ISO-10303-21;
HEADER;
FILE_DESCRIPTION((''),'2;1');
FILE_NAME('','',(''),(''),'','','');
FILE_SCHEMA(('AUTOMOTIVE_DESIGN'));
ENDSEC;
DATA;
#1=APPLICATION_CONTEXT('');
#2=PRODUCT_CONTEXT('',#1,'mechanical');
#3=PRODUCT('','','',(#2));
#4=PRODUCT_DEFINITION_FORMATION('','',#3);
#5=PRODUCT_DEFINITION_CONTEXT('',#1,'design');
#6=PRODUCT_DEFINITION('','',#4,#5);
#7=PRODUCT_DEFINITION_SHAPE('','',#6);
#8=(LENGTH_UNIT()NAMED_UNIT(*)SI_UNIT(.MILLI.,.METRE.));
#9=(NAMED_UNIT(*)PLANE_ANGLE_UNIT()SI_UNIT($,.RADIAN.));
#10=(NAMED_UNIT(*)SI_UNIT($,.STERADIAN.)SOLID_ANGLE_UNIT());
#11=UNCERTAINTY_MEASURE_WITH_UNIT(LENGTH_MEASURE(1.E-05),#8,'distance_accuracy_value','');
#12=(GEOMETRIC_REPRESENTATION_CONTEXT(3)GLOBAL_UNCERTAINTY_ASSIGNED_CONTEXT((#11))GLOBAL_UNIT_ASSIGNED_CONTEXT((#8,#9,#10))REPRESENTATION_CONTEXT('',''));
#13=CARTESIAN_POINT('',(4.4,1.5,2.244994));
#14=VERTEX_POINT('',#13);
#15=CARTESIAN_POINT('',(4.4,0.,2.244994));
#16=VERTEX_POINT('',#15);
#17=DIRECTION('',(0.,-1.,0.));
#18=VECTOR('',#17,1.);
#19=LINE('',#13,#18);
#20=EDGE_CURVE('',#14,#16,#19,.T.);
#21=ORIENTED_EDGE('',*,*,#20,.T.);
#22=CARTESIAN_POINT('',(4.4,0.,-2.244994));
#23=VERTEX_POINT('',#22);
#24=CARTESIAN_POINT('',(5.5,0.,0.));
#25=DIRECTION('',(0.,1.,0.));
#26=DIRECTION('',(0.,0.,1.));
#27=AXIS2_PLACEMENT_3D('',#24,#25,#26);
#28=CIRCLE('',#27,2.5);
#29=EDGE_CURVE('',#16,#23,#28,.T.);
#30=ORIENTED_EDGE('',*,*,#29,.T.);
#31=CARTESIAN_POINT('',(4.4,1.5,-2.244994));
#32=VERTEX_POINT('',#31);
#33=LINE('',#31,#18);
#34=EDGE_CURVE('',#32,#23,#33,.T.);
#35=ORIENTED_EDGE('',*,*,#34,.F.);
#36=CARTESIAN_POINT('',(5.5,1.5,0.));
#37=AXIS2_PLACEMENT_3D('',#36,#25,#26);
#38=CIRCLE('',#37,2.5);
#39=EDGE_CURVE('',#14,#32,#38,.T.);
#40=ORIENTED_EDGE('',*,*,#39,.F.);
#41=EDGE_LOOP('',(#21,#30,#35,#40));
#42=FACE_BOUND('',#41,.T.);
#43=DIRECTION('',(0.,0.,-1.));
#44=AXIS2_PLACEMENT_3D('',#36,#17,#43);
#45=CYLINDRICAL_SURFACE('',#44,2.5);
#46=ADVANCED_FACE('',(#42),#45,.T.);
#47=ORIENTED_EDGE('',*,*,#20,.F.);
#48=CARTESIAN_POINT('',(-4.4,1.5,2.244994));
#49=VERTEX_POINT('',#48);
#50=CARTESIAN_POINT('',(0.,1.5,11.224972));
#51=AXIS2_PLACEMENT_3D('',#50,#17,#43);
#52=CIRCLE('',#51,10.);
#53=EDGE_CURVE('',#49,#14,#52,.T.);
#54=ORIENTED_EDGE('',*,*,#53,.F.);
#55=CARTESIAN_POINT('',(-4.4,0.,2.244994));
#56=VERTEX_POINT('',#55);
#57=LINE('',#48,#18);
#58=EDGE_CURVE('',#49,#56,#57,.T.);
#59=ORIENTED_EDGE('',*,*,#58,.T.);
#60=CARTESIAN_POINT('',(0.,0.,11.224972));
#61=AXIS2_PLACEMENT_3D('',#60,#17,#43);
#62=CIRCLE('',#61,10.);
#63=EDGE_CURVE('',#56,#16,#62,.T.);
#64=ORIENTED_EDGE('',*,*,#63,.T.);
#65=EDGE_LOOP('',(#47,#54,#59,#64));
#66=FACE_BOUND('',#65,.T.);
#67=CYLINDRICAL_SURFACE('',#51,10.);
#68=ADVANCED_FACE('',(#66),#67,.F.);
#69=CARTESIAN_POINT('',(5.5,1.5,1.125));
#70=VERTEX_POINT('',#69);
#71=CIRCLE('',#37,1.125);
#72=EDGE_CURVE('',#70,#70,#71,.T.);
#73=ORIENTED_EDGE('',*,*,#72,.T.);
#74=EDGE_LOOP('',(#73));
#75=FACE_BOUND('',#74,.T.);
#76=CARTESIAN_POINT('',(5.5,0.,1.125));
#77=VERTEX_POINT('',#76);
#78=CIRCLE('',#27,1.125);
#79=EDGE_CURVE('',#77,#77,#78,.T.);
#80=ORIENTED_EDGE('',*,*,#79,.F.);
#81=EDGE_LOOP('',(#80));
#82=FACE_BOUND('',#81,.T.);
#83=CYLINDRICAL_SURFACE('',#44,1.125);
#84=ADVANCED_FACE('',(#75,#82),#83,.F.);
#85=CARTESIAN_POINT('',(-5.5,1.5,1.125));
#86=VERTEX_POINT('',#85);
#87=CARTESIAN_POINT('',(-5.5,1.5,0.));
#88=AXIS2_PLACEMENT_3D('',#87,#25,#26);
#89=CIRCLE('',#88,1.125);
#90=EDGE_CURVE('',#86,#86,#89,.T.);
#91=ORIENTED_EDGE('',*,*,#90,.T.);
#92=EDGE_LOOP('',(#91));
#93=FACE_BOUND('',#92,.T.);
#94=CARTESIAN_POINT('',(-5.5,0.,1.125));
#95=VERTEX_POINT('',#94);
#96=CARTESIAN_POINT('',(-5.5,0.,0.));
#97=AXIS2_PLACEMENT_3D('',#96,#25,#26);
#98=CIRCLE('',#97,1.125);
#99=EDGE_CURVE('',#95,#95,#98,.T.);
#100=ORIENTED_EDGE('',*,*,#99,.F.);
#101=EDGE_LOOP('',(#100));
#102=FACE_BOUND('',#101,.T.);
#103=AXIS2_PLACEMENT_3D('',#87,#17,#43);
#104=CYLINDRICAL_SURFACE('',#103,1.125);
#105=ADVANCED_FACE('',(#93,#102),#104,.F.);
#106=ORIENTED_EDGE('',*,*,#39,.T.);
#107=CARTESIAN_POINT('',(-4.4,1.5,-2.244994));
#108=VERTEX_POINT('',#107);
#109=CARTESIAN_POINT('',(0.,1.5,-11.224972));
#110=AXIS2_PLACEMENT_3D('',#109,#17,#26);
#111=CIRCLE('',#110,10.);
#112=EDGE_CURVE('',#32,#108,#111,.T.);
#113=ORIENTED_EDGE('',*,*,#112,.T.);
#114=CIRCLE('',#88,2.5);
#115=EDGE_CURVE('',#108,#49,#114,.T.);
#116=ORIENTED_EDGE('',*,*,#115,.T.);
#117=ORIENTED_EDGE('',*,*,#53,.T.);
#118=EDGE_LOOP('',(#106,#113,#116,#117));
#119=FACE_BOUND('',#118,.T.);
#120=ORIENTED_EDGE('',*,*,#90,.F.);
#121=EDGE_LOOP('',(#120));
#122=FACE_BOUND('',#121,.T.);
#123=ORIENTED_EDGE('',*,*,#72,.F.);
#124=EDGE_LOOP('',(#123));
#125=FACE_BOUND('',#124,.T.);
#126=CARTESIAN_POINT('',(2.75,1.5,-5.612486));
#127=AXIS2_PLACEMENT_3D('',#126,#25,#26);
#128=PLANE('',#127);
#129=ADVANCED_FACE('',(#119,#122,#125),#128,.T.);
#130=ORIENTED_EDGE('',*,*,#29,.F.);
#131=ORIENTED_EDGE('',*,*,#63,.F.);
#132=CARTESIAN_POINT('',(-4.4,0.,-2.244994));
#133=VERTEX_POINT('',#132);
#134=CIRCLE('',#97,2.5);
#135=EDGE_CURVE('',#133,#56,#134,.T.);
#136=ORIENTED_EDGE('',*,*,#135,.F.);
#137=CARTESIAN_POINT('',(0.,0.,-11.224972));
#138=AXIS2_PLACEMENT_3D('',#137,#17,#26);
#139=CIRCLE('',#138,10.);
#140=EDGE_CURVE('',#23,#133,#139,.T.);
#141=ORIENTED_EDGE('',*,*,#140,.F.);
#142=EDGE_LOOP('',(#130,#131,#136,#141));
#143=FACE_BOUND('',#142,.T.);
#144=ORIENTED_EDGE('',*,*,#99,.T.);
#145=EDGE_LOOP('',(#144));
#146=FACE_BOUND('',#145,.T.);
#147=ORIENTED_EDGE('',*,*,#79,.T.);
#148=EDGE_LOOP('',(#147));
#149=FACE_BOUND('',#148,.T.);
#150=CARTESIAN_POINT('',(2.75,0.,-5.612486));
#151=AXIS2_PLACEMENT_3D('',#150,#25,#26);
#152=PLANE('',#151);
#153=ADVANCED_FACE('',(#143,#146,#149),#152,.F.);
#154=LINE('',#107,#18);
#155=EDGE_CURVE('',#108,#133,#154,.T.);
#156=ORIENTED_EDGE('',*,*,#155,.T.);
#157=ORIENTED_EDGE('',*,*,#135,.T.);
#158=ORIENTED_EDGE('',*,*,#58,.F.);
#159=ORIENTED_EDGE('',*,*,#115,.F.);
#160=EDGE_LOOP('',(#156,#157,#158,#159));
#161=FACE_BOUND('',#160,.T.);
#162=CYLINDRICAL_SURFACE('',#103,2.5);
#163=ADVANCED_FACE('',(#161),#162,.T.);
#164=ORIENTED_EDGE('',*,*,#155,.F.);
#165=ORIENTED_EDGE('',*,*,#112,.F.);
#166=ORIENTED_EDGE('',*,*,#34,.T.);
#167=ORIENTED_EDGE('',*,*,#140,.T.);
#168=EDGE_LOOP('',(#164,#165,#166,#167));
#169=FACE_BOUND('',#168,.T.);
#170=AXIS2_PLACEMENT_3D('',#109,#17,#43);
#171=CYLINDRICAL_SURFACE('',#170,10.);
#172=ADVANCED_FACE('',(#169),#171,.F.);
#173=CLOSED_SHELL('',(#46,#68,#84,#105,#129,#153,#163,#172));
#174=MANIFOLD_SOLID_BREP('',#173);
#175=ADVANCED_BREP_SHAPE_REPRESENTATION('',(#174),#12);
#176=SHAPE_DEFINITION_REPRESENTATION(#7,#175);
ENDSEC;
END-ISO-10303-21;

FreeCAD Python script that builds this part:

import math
import FreeCAD as App
import Part
import Sketcher

V = App.Vector

doc = App.newDocument("Part")
body = doc.addObject("PartDesign::Body", "Body")

# Sketch on XZ plane
sketch1 = doc.addObject("Sketcher::SketchObject", "Sketch")
body.addObject(sketch1)
sketch1.AttachmentSupport = (doc.XZ_Plane, [""])
sketch1.MapMode = "FlatFace"
sketch1.addGeometry([
    Part.ArcOfCircle(Part.Circle(V(-5.5, 0, 0), V(0, 0, 1), 2.5), math.radians(63.896119), math.radians(296.103881)),  # 0
    Part.ArcOfCircle(Part.Circle(V(0, 11.224972, 0), V(0, 0, 1), 10), math.radians(-116.103881), math.radians(-63.896119)),  # 1
    Part.ArcOfCircle(Part.Circle(V(5.5, 0, 0), V(0, 0, 1), 2.5), math.radians(-116.103881), math.radians(116.103881)),  # 2
    Part.ArcOfCircle(Part.Circle(V(0, -11.224972, 0), V(0, 0, 1), 10), math.radians(63.896119), math.radians(116.103881)),  # 3
    Part.Circle(V(-5.5, 0, 0), V(0, 0, 1), 1.125),  # 4
    Part.Circle(V(5.5, 0, 0), V(0, 0, 1), 1.125),  # 5
], False)
sketch1.addConstraint([
    Sketcher.Constraint("Tangent", 0, 1, 1, 1),
    Sketcher.Constraint("Tangent", 1, 2, 2, 2),
    Sketcher.Constraint("Tangent", 2, 1, 3, 1),
    Sketcher.Constraint("Tangent", 3, 2, 0, 2),
    Sketcher.Constraint("Coincident", 4, 3, 0, 3),
    Sketcher.Constraint("Coincident", 5, 3, 2, 3),
    Sketcher.Constraint("Equal", 0, 2),
    Sketcher.Constraint("Equal", 1, 3),
    Sketcher.Constraint("Equal", 4, 5),
    Sketcher.Constraint("Symmetric", 0, 3, 2, 3, -1, 1),
    Sketcher.Constraint("PointOnObject", 0, 3, -1),
    Sketcher.Constraint("Radius", 1, 10.0),
    Sketcher.Constraint("Radius", 0, 2.5),
    Sketcher.Constraint("Diameter", 4, 2.25),
    Sketcher.Constraint("DistanceX", 0, 3, 2, 3, 11.0),
])
pad1 = doc.addObject("PartDesign::Pad", "Pad")
body.addObject(pad1)
pad1.Profile = sketch1
pad1.Length = 1.5
pad1.Reversed = True

doc.recompute()
